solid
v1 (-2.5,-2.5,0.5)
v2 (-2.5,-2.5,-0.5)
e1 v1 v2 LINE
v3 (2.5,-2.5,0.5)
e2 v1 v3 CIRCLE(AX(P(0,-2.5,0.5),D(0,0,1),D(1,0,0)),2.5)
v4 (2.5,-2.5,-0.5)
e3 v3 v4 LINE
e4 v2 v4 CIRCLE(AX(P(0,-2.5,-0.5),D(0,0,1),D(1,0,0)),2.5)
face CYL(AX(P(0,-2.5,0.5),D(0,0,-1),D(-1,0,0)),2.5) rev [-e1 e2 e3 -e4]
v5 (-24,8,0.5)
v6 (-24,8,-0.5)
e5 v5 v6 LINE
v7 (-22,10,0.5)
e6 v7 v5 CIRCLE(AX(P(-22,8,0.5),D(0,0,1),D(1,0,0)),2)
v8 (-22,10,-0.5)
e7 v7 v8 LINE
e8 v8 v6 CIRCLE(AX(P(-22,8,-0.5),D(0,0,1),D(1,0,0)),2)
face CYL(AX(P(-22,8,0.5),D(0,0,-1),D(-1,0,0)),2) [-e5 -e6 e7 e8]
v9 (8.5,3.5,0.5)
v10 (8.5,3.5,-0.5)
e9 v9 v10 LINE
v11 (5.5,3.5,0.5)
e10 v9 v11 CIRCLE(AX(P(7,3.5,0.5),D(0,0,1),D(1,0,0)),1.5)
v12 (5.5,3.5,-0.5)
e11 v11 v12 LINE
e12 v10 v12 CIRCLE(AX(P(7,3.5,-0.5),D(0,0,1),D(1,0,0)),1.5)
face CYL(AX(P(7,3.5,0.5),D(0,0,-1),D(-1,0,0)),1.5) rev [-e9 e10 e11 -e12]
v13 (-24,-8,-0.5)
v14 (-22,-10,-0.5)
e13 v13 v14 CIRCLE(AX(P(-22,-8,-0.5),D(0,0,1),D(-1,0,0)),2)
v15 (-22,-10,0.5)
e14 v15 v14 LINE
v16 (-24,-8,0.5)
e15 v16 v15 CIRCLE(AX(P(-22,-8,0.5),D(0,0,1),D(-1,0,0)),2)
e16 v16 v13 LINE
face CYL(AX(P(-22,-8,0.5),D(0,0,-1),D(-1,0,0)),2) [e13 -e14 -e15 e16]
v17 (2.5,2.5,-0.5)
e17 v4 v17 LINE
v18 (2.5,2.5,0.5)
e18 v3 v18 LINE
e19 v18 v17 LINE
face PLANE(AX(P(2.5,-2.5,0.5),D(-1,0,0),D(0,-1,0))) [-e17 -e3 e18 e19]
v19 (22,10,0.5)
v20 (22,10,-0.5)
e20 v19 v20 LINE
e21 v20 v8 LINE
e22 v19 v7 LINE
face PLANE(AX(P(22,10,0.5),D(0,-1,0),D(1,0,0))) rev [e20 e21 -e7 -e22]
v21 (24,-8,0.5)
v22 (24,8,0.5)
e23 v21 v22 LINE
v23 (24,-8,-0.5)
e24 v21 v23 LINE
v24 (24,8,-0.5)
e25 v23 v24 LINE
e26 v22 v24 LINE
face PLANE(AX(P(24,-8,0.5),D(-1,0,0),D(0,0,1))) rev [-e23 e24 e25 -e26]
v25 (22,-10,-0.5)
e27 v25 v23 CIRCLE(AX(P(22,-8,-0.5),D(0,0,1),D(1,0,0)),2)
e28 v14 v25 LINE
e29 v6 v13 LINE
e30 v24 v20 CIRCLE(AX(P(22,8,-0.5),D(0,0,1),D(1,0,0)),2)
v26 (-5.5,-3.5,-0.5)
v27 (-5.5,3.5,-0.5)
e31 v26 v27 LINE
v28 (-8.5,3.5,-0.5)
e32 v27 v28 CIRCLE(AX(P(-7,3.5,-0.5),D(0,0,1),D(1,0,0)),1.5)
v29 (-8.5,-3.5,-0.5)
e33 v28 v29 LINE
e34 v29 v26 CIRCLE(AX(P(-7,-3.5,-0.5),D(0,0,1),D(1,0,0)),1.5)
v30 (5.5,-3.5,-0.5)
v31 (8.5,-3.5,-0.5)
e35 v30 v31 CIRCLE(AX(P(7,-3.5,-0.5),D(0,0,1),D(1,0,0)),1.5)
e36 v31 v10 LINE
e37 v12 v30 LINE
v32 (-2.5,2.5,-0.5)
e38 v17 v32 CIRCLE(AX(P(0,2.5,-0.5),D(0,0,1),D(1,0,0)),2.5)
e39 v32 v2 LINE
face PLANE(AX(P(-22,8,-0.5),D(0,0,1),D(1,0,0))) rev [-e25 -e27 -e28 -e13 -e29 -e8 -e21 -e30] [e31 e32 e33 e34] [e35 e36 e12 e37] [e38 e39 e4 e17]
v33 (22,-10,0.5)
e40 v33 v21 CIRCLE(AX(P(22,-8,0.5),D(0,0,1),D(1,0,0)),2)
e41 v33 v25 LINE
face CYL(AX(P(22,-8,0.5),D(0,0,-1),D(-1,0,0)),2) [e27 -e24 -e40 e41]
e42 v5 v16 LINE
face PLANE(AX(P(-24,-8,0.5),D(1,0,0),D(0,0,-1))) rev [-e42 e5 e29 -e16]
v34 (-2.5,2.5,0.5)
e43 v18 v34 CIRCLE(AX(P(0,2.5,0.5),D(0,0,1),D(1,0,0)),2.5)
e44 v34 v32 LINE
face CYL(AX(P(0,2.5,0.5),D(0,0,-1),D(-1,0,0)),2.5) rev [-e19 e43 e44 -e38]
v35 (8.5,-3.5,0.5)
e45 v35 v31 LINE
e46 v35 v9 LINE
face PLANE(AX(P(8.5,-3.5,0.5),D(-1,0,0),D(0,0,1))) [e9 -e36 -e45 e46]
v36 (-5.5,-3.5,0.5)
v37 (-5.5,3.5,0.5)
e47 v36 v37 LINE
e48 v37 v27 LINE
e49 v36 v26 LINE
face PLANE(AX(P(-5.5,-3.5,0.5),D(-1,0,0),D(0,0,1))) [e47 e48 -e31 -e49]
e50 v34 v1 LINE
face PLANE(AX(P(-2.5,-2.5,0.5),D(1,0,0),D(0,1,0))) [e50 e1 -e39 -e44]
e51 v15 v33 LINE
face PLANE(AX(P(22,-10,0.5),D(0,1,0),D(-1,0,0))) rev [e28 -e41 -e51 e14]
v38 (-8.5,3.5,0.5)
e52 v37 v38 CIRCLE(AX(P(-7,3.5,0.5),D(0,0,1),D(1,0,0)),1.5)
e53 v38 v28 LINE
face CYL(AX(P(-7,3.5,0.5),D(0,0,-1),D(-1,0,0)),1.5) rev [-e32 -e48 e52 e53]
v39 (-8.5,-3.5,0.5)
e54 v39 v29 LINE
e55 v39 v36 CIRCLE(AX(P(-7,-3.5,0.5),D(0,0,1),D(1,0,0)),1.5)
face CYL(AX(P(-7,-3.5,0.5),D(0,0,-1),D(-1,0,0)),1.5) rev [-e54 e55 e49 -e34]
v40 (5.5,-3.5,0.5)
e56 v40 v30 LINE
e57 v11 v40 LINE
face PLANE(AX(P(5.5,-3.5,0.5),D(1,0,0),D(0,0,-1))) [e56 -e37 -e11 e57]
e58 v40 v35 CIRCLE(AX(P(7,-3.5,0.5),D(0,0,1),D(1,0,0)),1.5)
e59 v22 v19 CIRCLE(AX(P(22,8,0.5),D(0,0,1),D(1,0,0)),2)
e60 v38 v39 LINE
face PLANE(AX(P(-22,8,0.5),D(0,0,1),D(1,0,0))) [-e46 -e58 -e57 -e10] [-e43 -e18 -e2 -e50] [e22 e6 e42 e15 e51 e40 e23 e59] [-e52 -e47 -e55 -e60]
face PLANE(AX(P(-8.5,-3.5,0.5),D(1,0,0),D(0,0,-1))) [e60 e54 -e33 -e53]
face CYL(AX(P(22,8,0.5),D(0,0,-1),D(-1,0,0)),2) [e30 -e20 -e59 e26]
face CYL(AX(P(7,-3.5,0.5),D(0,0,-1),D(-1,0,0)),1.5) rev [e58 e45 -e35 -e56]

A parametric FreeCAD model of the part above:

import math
import FreeCAD as App
import Part
import Sketcher

V = App.Vector
Q = App.Units.Quantity

doc = App.newDocument("Part")
params = doc.addObject("Spreadsheet::Sheet", "Params")
for row, (alias, value) in enumerate([
    ("sketch1_radius", "2 mm"),
    ("sketch1_radius2", "1.5 mm"),
    ("sketch1_radius3", "2.5 mm"),
    ("sketch1_width", "44 mm"),
    ("sketch1_height", "16 mm"),
    ("pad1_length", "1 mm"),
], start=1):
    params.set(f"A{row}", alias)
    params.set(f"B{row}", "=" + value)
    params.setAlias(f"B{row}", alias)

body = doc.addObject("PartDesign::Body", "Body")

# Sketch on XY plane
sketch1 = body.newObject("Sketcher::SketchObject", "Sketch")
sketch1.AttachmentSupport = (doc.getObject("XY_Plane"), [""])
sketch1.MapMode = "FlatFace"
sketch1.addGeometry([
    Part.LineSegment(V(-22, -10, 0), V(22, -10, 0)),  # 0
    Part.ArcOfCircle(Part.Circle(V(22, -8, 0), V(0, 0, 1), 2), math.radians(-90), math.radians(0)),  # 1
    Part.LineSegment(V(24, -8, 0), V(24, 8, 0)),  # 2
    Part.ArcOfCircle(Part.Circle(V(22, 8, 0), V(0, 0, 1), 2), math.radians(0), math.radians(90)),  # 3
    Part.LineSegment(V(22, 10, 0), V(-22, 10, 0)),  # 4
    Part.ArcOfCircle(Part.Circle(V(-22, 8, 0), V(0, 0, 1), 2), math.radians(90), math.radians(180)),  # 5
    Part.LineSegment(V(-24, 8, 0), V(-24, -8, 0)),  # 6
    Part.ArcOfCircle(Part.Circle(V(-22, -8, 0), V(0, 0, 1), 2), math.radians(-180), math.radians(-90)),  # 7
    Part.LineSegment(V(5.5, -3.5, 0), V(5.5, 3.5, 0)),  # 8
    Part.ArcOfCircle(Part.Circle(V(7, 3.5, 0), V(0, 0, 1), 1.5), math.radians(0), math.radians(180)),  # 9
    Part.LineSegment(V(8.5, 3.5, 0), V(8.5, -3.5, 0)),  # 10
    Part.ArcOfCircle(Part.Circle(V(7, -3.5, 0), V(0, 0, 1), 1.5), math.radians(180), math.radians(360)),  # 11
    Part.LineSegment(V(-2.5, -2.5, 0), V(-2.5, 2.5, 0)),  # 12
    Part.ArcOfCircle(Part.Circle(V(0, 2.5, 0), V(0, 0, 1), 2.5), math.radians(0), math.radians(180)),  # 13
    Part.LineSegment(V(2.5, 2.5, 0), V(2.5, -2.5, 0)),  # 14
    Part.ArcOfCircle(Part.Circle(V(0, -2.5, 0), V(0, 0, 1), 2.5), math.radians(180), math.radians(360)),  # 15
    Part.LineSegment(V(-8.5, -3.5, 0), V(-8.5, 3.5, 0)),  # 16
    Part.ArcOfCircle(Part.Circle(V(-7, 3.5, 0), V(0, 0, 1), 1.5), math.radians(0), math.radians(180)),  # 17
    Part.LineSegment(V(-5.5, 3.5, 0), V(-5.5, -3.5, 0)),  # 18
    Part.ArcOfCircle(Part.Circle(V(-7, -3.5, 0), V(0, 0, 1), 1.5), math.radians(180), math.radians(360)),  # 19
], False)
sketch1.addConstraint([
    Sketcher.Constraint("Tangent", 0, 2, 1, 1),
    Sketcher.Constraint("Tangent", 1, 2, 2, 1),
    Sketcher.Constraint("Tangent", 2, 2, 3, 1),
    Sketcher.Constraint("Tangent", 3, 2, 4, 1),
    Sketcher.Constraint("Tangent", 4, 2, 5, 1),
    Sketcher.Constraint("Tangent", 5, 2, 6, 1),
    Sketcher.Constraint("Tangent", 6, 2, 7, 1),
    Sketcher.Constraint("Tangent", 7, 2, 0, 1),
    Sketcher.Constraint("Tangent", 8, 2, 9, 2),
    Sketcher.Constraint("Tangent", 9, 1, 10, 1),
    Sketcher.Constraint("Tangent", 10, 2, 11, 2),
    Sketcher.Constraint("Tangent", 11, 1, 8, 1),
    Sketcher.Constraint("Tangent", 12, 2, 13, 2),
    Sketcher.Constraint("Tangent", 13, 1, 14, 1),
    Sketcher.Constraint("Tangent", 14, 2, 15, 2),
    Sketcher.Constraint("Tangent", 15, 1, 12, 1),
    Sketcher.Constraint("Tangent", 16, 2, 17, 2),
    Sketcher.Constraint("Tangent", 17, 1, 18, 1),
    Sketcher.Constraint("Tangent", 18, 2, 19, 2),
    Sketcher.Constraint("Tangent", 19, 1, 16, 1),
    Sketcher.Constraint("Horizontal", 0),
    Sketcher.Constraint("Vertical", 2),
    Sketcher.Constraint("Horizontal", 4),
    Sketcher.Constraint("Vertical", 6),
    Sketcher.Constraint("Vertical", 8),
    Sketcher.Constraint("Vertical", 10),
    Sketcher.Constraint("Vertical", 12),
    Sketcher.Constraint("Vertical", 14),
    Sketcher.Constraint("Vertical", 16),
    Sketcher.Constraint("Vertical", 18),
    Sketcher.Constraint("Equal", 1, 3),
    Sketcher.Constraint("Equal", 3, 5),
    Sketcher.Constraint("Equal", 5, 7),
    Sketcher.Constraint("Equal", 11, 17),
    Sketcher.Constraint("Symmetric", 1, 3, 5, 3, -1, 1),
    Sketcher.Constraint("Symmetric", 13, 3, 15, 3, -1, 1),
    Sketcher.Constraint("Symmetric", 11, 3, 17, 3, -1, 1),
    Sketcher.Constraint("Horizontal", 9, 3, 17, 3),
    Sketcher.Constraint("Horizontal", 11, 3, 19, 3),
    Sketcher.Constraint("Radius", 1, Q("2 mm")),
    Sketcher.Constraint("Radius", 9, Q("1.5 mm")),
    Sketcher.Constraint("Radius", 13, Q("2.5 mm")),
    Sketcher.Constraint("DistanceX", 0, 1, 0, 2, Q("44 mm")),
    Sketcher.Constraint("DistanceY", 2, 1, 2, 2, Q("16 mm")),
    Sketcher.Constraint("DistanceY", 8, 1, 8, 2, Q("7 mm")),
    Sketcher.Constraint("DistanceY", 12, 1, 12, 2, Q("5 mm")),
    Sketcher.Constraint("DistanceX", -1, 1, 9, 3, Q("7 mm")),
])
sketch1.setExpression("Constraints[39]", "Params.sketch1_radius")
sketch1.setExpression("Constraints[40]", "Params.sketch1_radius2")
sketch1.setExpression("Constraints[41]", "Params.sketch1_radius3")
sketch1.setExpression("Constraints[42]", "Params.sketch1_width")
sketch1.setExpression("Constraints[43]", "Params.sketch1_height")
pad1 = body.newObject("PartDesign::Pad", "Pad")
pad1.Profile = sketch1
pad1.setExpression("Length", "Params.pad1_length")
pad1.Midplane = True

doc.recompute()
